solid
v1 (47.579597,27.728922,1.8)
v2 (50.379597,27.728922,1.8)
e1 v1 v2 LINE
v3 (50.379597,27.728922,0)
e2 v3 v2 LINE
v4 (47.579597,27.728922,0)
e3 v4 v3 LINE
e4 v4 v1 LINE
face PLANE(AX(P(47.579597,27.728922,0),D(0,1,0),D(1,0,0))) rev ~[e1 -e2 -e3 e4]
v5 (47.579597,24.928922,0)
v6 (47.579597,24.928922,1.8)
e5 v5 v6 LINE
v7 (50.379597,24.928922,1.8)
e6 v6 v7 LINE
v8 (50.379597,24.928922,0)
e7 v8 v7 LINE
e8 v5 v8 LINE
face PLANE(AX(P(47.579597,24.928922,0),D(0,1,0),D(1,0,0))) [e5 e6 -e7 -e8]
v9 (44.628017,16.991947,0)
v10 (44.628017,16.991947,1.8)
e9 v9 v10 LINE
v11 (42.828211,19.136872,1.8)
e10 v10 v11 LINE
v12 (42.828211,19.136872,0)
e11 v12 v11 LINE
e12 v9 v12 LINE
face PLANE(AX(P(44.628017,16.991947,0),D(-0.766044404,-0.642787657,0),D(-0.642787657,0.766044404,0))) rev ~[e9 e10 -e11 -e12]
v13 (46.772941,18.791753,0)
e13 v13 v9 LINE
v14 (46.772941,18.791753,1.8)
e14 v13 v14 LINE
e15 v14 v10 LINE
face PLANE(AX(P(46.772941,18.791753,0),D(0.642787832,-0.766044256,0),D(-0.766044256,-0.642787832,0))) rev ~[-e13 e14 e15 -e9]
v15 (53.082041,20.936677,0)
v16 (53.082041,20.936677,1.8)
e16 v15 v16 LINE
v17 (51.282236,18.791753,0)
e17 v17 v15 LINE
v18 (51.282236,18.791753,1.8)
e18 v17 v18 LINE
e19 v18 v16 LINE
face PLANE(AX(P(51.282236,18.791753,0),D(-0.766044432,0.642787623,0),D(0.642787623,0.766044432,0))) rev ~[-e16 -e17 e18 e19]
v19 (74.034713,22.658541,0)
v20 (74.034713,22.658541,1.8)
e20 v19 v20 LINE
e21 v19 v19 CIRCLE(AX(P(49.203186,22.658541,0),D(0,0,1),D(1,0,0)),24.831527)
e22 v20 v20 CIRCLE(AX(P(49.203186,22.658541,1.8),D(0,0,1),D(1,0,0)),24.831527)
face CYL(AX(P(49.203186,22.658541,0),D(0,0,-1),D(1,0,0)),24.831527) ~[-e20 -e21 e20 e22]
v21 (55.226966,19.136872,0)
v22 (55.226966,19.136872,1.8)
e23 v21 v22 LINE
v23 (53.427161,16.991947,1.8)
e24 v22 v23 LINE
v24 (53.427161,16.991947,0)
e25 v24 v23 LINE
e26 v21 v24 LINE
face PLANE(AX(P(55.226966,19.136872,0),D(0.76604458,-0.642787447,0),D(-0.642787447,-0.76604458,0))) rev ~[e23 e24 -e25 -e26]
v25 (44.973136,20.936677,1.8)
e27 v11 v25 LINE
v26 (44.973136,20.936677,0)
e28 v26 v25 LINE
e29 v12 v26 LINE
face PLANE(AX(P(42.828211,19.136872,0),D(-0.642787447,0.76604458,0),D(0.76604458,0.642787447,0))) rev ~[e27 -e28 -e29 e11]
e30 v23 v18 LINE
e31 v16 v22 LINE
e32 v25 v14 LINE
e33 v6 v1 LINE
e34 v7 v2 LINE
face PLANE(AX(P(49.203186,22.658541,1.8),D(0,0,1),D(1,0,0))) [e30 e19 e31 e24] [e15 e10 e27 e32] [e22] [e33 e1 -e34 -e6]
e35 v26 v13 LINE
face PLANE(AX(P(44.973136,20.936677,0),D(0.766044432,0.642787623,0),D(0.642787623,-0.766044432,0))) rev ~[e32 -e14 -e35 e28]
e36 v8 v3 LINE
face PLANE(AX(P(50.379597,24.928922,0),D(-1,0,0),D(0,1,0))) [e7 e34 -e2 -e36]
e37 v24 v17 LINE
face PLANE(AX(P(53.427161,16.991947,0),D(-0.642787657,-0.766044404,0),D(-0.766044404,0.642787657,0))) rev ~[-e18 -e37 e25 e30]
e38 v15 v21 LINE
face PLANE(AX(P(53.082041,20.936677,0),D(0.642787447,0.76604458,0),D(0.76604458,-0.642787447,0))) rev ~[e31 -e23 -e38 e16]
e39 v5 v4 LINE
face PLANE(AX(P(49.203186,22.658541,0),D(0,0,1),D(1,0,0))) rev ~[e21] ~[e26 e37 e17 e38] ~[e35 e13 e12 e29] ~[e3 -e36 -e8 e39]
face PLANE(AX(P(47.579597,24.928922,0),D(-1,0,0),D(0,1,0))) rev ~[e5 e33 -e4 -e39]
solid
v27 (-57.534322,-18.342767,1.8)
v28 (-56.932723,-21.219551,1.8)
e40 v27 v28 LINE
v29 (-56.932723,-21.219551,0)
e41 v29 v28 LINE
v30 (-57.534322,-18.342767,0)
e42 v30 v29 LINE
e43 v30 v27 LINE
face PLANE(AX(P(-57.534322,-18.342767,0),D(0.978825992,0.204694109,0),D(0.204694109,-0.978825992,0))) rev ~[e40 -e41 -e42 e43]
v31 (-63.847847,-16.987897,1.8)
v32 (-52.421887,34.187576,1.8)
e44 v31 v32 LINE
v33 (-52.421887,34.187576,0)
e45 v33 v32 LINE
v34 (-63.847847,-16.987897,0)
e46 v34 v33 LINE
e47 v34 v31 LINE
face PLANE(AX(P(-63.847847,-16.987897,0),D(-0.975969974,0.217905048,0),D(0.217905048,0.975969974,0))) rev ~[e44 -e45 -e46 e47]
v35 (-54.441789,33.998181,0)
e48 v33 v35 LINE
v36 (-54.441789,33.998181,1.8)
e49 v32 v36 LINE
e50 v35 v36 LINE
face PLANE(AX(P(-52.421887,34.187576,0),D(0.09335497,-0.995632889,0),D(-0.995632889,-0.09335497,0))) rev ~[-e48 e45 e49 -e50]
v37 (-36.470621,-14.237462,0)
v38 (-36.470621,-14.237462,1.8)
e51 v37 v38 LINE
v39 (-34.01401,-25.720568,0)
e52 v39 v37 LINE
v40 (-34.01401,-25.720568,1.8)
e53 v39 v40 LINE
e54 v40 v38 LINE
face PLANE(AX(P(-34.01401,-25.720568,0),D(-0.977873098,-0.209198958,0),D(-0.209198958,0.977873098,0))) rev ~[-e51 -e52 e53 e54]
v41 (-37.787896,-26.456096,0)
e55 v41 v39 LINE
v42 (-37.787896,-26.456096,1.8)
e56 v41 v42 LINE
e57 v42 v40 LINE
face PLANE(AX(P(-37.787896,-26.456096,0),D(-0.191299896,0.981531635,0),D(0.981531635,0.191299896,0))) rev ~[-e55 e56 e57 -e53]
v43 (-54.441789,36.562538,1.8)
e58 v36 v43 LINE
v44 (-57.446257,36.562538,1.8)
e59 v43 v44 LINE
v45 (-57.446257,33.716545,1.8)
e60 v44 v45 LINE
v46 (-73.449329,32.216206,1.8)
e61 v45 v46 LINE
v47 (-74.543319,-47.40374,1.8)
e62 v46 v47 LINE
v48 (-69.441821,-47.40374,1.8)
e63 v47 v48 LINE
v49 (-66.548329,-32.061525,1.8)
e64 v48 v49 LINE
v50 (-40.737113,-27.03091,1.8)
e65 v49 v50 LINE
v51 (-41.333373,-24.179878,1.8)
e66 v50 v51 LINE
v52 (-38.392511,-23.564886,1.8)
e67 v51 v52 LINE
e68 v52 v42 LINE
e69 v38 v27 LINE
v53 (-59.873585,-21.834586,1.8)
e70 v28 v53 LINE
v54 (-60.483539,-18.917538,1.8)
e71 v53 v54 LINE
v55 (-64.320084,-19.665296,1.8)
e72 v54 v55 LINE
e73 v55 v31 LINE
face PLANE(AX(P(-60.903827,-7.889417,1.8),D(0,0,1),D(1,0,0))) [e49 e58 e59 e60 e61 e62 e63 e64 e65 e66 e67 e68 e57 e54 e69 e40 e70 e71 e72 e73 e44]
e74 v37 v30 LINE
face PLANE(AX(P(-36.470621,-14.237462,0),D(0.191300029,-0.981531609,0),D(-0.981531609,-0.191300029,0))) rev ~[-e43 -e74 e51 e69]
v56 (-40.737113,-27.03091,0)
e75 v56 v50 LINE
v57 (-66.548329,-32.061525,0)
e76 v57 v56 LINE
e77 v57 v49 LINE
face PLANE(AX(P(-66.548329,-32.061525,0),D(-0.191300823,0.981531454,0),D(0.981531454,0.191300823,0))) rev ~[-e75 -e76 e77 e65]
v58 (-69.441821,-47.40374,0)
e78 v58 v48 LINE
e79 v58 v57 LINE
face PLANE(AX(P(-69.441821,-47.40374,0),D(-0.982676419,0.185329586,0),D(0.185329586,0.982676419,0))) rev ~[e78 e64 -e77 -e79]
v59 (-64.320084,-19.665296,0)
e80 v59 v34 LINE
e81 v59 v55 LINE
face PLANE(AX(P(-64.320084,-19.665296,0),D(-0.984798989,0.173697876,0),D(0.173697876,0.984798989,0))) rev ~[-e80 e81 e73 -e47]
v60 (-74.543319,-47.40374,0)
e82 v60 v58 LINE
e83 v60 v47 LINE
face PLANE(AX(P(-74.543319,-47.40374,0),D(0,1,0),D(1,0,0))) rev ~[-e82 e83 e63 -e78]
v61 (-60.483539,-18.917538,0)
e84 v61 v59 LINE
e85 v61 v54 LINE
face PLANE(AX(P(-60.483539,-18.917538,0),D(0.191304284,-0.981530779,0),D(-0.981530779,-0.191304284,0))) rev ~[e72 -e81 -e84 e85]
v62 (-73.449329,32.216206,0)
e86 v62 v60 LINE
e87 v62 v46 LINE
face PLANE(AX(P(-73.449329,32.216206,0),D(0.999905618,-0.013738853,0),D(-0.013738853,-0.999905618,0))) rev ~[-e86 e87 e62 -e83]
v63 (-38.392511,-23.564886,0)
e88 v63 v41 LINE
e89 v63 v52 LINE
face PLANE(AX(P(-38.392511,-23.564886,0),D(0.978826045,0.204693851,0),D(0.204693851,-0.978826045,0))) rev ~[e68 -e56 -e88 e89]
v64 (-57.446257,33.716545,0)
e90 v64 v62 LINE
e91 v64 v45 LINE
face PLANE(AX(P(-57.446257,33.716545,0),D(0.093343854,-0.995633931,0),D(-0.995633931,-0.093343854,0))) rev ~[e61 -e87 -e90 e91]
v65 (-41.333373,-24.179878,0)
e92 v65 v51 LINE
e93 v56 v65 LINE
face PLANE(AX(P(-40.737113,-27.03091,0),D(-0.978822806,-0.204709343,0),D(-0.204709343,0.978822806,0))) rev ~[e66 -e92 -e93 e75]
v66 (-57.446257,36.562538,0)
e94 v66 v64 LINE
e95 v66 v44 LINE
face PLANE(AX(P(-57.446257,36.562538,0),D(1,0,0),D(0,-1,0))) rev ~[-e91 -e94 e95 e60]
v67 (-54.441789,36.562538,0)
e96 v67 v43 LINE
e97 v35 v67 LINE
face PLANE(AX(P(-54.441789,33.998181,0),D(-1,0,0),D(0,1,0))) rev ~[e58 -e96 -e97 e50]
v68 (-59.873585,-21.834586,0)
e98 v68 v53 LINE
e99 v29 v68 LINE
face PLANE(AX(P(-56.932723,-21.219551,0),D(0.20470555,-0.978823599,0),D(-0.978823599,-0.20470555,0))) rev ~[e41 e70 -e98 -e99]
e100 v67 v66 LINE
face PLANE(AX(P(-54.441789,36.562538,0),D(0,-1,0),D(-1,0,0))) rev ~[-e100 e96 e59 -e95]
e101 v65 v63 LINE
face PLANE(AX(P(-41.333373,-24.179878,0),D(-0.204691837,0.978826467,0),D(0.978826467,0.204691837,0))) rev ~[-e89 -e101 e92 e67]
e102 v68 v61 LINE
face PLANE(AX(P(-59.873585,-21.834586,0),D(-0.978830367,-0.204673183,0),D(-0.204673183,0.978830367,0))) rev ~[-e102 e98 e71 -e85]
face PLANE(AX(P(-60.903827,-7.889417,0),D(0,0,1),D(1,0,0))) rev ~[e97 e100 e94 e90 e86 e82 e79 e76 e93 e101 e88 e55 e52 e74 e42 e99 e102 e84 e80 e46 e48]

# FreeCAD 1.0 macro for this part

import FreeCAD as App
import Part
import Sketcher

V = App.Vector
Q = App.Units.Quantity


def add_polygon(sketch, points):
    """Adds a closed chain of lines whose ends are joined by coincident constraints."""
    first, n = sketch.GeometryCount, len(points)
    for a, b in zip(points, points[1:] + points[:1]):
        sketch.addGeometry(Part.LineSegment(App.Vector(*a, 0), App.Vector(*b, 0)), False)
    for i in range(n):
        sketch.addConstraint(Sketcher.Constraint("Coincident", first + i, 2, first + (i + 1) % n, 1))

doc = App.newDocument("Part")
body = doc.addObject("PartDesign::Body", "Body")

# Sketch on XY plane
sketch1 = body.newObject("Sketcher::SketchObject", "Sketch")
sketch1.AttachmentSupport = (doc.getObject("XY_Plane"), [""])
sketch1.MapMode = "FlatFace"
sketch1.addGeometry(Part.Circle(V(49.203186, 22.658541, 0), V(0, 0, 1), 24.831527), False)  # 0
add_polygon(sketch1, [(42.828211, 19.136872), (44.973136, 20.936677), (46.772941, 18.791753), (44.628017, 16.991947)])  # lines 1-4
add_polygon(sketch1, [(53.082041, 20.936677), (55.226966, 19.136872), (53.427161, 16.991947), (51.282236, 18.791753)])  # lines 5-8
add_polygon(sketch1, [(50.379597, 24.928922), (47.579597, 24.928922), (47.579597, 27.728922), (50.379597, 27.728922)])  # lines 9-12
sketch1.addConstraint([
    Sketcher.Constraint("Horizontal", 9),
    Sketcher.Constraint("Vertical", 10),
    Sketcher.Constraint("Horizontal", 11),
    Sketcher.Constraint("Vertical", 12),
    Sketcher.Constraint("Perpendicular", 1, 2),
    Sketcher.Constraint("Perpendicular", 2, 3),
    Sketcher.Constraint("Perpendicular", 3, 4),
    Sketcher.Constraint("Perpendicular", 5, 6),
    Sketcher.Constraint("Perpendicular", 6, 7),
    Sketcher.Constraint("Perpendicular", 7, 8),
    Sketcher.Constraint("Horizontal", 4, 2, 5, 2),
    Sketcher.Constraint("Horizontal", 3, 2, 6, 2),
    Sketcher.Constraint("Horizontal", 2, 2, 7, 2),
    Sketcher.Constraint("Equal", 11, 10),
    Sketcher.Constraint("Equal", 1, 2),
    Sketcher.Constraint("Equal", 4, 5),
    Sketcher.Constraint("Angle", 1, Q("39.999988 deg")),
    Sketcher.Constraint("DistanceX", 9, 2, 9, 1, 2.8),
    Sketcher.Constraint("Distance", 1, 2.8),
    Sketcher.Constraint("Diameter", 0, 49.663054),
    Sketcher.Constraint("DistanceX", 1, 2, 7, 2, 6.3091),
    Sketcher.Constraint("DistanceY", -1, 1, 0, 3, 22.658541),
    Sketcher.Constraint("DistanceX", -1, 1, 2, 2, 46.772941),
    Sketcher.Constraint("DistanceY", -1, 1, 9, 2, 24.928922),
    Sketcher.Constraint("DistanceX", 1, 2, 0, 3, 4.23005),
    Sketcher.Constraint("DistanceY", 4, 2, 0, 3, 3.521669),
    Sketcher.Constraint("DistanceX", 9, 2, 0, 3, 1.623589),
])
pad1 = body.newObject("PartDesign::Pad", "Pad")
pad1.Profile = sketch1
pad1.Length = 1.8
body2 = doc.addObject("PartDesign::Body", "Body001")

# Sketch on XY plane
sketch2 = body2.newObject("Sketcher::SketchObject", "Sketch001")
sketch2.AttachmentSupport = (doc.getObject("XY_Plane001"), [""])
sketch2.MapMode = "FlatFace"
add_polygon(sketch2, [(-34.01401, -25.720568), (-36.470621, -14.237462), (-57.534322, -18.342767), (-56.932723, -21.219551), (-59.873585, -21.834586), (-60.483539, -18.917538), (-64.320084, -19.665296), (-63.847847, -16.987897), (-52.421887, 34.187576), (-54.441789, 33.998181), (-54.441789, 36.562538), (-57.446257, 36.562538), (-57.446257, 33.716545), (-73.449329, 32.216206), (-74.543319, -47.40374), (-69.441821, -47.40374), (-66.548329, -32.061525), (-40.737113, -27.03091), (-41.333373, -24.179878), (-38.392511, -23.564886), (-37.787896, -26.456096)])  # lines 0-20
sketch2.addConstraint([
    Sketcher.Constraint("Vertical", 9),
    Sketcher.Constraint("Horizontal", 10),
    Sketcher.Constraint("Vertical", 11),
    Sketcher.Constraint("Horizontal", 14),
    Sketcher.Constraint("Parallel", 1, 16),
    Sketcher.Constraint("Parallel", 2, 19),
    Sketcher.Constraint("Parallel", 16, 20),
    Sketcher.Constraint("DistanceY", 0, 2, 9, 2, 50.8),
    Sketcher.Constraint("Distance", 7, 52.435499),
    Sketcher.Constraint("DistanceX", 10, 2, 10, 1, 3.004468),
    Sketcher.Constraint("DistanceX", 1, 2, 0, 2, 21.063701),
    Sketcher.Constraint("DistanceX", 1, 2, 2, 2, 0.601599),
    Sketcher.Constraint("DistanceX", 5, 2, 3, 2, 4.446499),
    Sketcher.Constraint("DistanceY", 5, 2, 6, 2, 2.677399),
    Sketcher.Constraint("DistanceY", 13, 2, 4, 2, 28.486202),
    Sketcher.Constraint("DistanceX", 14, 2, 2, 2, 12.509098),
    Sketcher.Constraint("DistanceX", 18, 2, 20, 2, 4.378501),
    Sketcher.Constraint("Distance", 0, 11.742941),
    Sketcher.Constraint("Distance", 8, 2.028762),
    Sketcher.Constraint("Distance", 12, 16.073249),
    Sketcher.Constraint("Distance", 13, 79.627461),
    Sketcher.Constraint("Distance", 16, 26.296881),
    Sketcher.Constraint("DistanceX", 14, 1, 14, 2, 5.101498),
    Sketcher.Constraint("DistanceY", 9, 1, 9, 2, 2.564357),
    Sketcher.Constraint("DistanceY", 11, 2, 11, 1, 2.845993),
    Sketcher.Constraint("DistanceX", 0, 2, -1, 1, 36.470621),
    Sketcher.Constraint("DistanceY", 2, 2, -1, 1, 21.219551),
    Sketcher.Constraint("DistanceX", 4, 2, -1, 1, 60.483539),
    Sketcher.Constraint("DistanceY", 4, 2, -1, 1, 18.917538),
    Sketcher.Constraint("DistanceX", 8, 2, -1, 1, 54.441789),
    Sketcher.Constraint("DistanceY", -1, 1, 8, 2, 33.998181),
    Sketcher.Constraint("DistanceX", 15, 2, -1, 1, 66.548329),
    Sketcher.Constraint("DistanceY", 16, 2, -1, 1, 27.03091),
    Sketcher.Constraint("DistanceX", 18, 2, -1, 1, 38.392511),
    Sketcher.Constraint("DistanceX", 3, 2, 2, 2, 2.940862),
    Sketcher.Constraint("DistanceY", 3, 2, 1, 2, 3.491819),
    Sketcher.Constraint("DistanceY", 3, 2, 4, 2, 2.917048),
    Sketcher.Constraint("DistanceY", 5, 2, 4, 2, 0.747758),
    Sketcher.Constraint("DistanceX", 6, 2, 4, 2, 3.364308),
    Sketcher.Constraint("DistanceX", 17, 2, 16, 2, 0.59626),
    Sketcher.Constraint("DistanceY", 16, 2, 17, 2, 2.851032),
    Sketcher.Constraint("DistanceY", 17, 2, 18, 2, 0.614992),
])
pad2 = body2.newObject("PartDesign::Pad", "Pad001")
pad2.Profile = sketch2
pad2.Length = 1.8

doc.recompute()
